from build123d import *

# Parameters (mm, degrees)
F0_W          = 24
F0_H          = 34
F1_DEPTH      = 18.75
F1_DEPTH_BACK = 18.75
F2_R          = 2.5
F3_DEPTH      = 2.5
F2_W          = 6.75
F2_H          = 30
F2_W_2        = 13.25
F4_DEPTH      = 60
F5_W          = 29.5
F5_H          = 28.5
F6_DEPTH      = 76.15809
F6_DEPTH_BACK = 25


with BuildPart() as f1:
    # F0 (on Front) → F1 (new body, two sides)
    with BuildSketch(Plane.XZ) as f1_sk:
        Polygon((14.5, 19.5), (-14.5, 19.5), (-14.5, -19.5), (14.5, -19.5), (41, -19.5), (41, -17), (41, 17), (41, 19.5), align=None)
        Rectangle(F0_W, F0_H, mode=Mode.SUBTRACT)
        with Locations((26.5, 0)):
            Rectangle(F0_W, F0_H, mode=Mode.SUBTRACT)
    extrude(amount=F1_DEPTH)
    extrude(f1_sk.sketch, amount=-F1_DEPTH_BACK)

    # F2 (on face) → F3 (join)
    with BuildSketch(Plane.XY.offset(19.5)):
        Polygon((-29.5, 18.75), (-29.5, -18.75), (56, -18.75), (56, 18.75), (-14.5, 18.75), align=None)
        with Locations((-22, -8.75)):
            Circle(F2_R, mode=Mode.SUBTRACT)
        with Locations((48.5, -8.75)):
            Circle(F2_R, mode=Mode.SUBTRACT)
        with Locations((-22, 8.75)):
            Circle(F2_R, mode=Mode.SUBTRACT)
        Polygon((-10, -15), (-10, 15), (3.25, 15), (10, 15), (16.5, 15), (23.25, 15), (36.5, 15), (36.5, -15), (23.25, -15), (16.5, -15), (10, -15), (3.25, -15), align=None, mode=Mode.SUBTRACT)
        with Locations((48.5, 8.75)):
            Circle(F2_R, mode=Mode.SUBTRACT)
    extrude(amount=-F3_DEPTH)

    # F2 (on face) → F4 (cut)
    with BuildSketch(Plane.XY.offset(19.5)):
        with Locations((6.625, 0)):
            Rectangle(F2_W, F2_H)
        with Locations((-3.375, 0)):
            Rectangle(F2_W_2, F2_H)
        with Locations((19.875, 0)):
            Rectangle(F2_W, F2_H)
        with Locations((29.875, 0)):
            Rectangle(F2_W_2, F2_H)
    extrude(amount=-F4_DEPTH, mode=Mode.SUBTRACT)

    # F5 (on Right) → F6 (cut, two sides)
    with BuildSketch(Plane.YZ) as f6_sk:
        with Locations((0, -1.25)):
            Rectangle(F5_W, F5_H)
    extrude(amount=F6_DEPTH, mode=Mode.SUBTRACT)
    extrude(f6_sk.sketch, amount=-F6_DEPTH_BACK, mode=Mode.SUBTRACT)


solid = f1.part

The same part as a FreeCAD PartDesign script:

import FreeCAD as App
import Part
import Sketcher

doc = App.newDocument("Part")
body = doc.addObject("PartDesign::Body", "Body")

sketch1 = body.newObject("Sketcher::SketchObject", "Sketch")
sketch1.AttachmentSupport = (doc.getObject("XZ_Plane"), [""])
sketch1.MapMode = "FlatFace"
sketch1.addGeometry([
    Part.LineSegment(App.Vector(-14, 20, 0), App.Vector(-14, -20, 0)),
    Part.LineSegment(App.Vector(-14, -20, 0), App.Vector(41, -20, 0)),
    Part.LineSegment(App.Vector(41, -20, 0), App.Vector(41, 20, 0)),
    Part.LineSegment(App.Vector(41, 20, 0), App.Vector(-14, 20, 0)),
    Part.LineSegment(App.Vector(12, -17, 0), App.Vector(-12, -17, 0)),
    Part.LineSegment(App.Vector(-12, -17, 0), App.Vector(-12, 17, 0)),
    Part.LineSegment(App.Vector(-12, 17, 0), App.Vector(12, 17, 0)),
    Part.LineSegment(App.Vector(12, 17, 0), App.Vector(12, -17, 0)),
    Part.LineSegment(App.Vector(38, -17, 0), App.Vector(14, -17, 0)),
    Part.LineSegment(App.Vector(14, -17, 0), App.Vector(14, 17, 0)),
    Part.LineSegment(App.Vector(14, 17, 0), App.Vector(38, 17, 0)),
    Part.LineSegment(App.Vector(38, 17, 0), App.Vector(38, -17, 0)),
], False)
sketch1.addConstraint([
    Sketcher.Constraint("Coincident", 0, 2, 1, 1),
    Sketcher.Constraint("Coincident", 1, 2, 2, 1),
    Sketcher.Constraint("Coincident", 2, 2, 3, 1),
    Sketcher.Constraint("Coincident", 3, 2, 0, 1),
    Sketcher.Constraint("Coincident", 4, 2, 5, 1),
    Sketcher.Constraint("Coincident", 5, 2, 6, 1),
    Sketcher.Constraint("Coincident", 6, 2, 7, 1),
    Sketcher.Constraint("Coincident", 7, 2, 4, 1),
    Sketcher.Constraint("Coincident", 8, 2, 9, 1),
    Sketcher.Constraint("Coincident", 9, 2, 10, 1),
    Sketcher.Constraint("Coincident", 10, 2, 11, 1),
    Sketcher.Constraint("Coincident", 11, 2, 8, 1),
    Sketcher.Constraint("Vertical", 0),
    Sketcher.Constraint("Horizontal", 1),
    Sketcher.Constraint("Vertical", 2),
    Sketcher.Constraint("Horizontal", 3),
    Sketcher.Constraint("Horizontal", 4),
    Sketcher.Constraint("Vertical", 5),
    Sketcher.Constraint("Horizontal", 6),
    Sketcher.Constraint("Vertical", 7),
    Sketcher.Constraint("Horizontal", 8),
    Sketcher.Constraint("Vertical", 9),
    Sketcher.Constraint("Horizontal", 10),
    Sketcher.Constraint("Vertical", 11),
    Sketcher.Constraint("Symmetric", 4, 2, 6, 2, -1, 1),
    Sketcher.Constraint("Horizontal", 7, 2, 8, 2),
    Sketcher.Constraint("Horizontal", 6, 2, 9, 2),
    Sketcher.Constraint("Equal", 6, 8),
    Sketcher.Constraint("DistanceX", 4, 2, 4, 1, 24.0),
    Sketcher.Constraint("DistanceY", 0, 2, 0, 1, 39.0),
    Sketcher.Constraint("DistanceY", 5, 1, 5, 2, 34.0),
    Sketcher.Constraint("DistanceX", 1, 1, 1, 2, 55.5),
    Sketcher.Constraint("DistanceX", -1, 1, 1, 2, 41.0),
    Sketcher.Constraint("DistanceX", 0, 2, 8, 2, 29.0),
    Sketcher.Constraint("DistanceY", 0, 2, -1, 1, 19.5),
])
pad1 = body.newObject("PartDesign::Pad", "Pad")
pad1.Profile = sketch1
pad1.Type = "TwoLengths"
pad1.Length = 18.75
pad1.Length2 = 18.75

sketch2 = body.newObject("Sketcher::SketchObject", "Sketch001")
sketch2.AttachmentSupport = (doc.getObject("XY_Plane"), [""])
sketch2.MapMode = "FlatFace"
sketch2.AttachmentOffset = App.Placement(App.Vector(0, 0, 19.5), App.Rotation())
sketch2.addGeometry([
    Part.LineSegment(App.Vector(-29.5, 18.8, 0), App.Vector(-29.5, -18.8, 0)),
    Part.LineSegment(App.Vector(-29.5, -18.8, 0), App.Vector(56, -18.8, 0)),
    Part.LineSegment(App.Vector(56, -18.8, 0), App.Vector(56, 18.8, 0)),
    Part.LineSegment(App.Vector(56, 18.8, 0), App.Vector(-29.5, 18.8, 0)),
    Part.Circle(App.Vector(-22, -8.8, 0), App.Vector(0, 0, 1), 2.5),
    Part.Circle(App.Vector(48.5, -8.8, 0), App.Vector(0, 0, 1), 2.5),
    Part.Circle(App.Vector(-22, 8.8, 0), App.Vector(0, 0, 1), 2.5),
    Part.LineSegment(App.Vector(36.5, -15, 0), App.Vector(-10, -15, 0)),
    Part.LineSegment(App.Vector(-10, -15, 0), App.Vector(-10, 15, 0)),
    Part.LineSegment(App.Vector(-10, 15, 0), App.Vector(36.5, 15, 0)),
    Part.LineSegment(App.Vector(36.5, 15, 0), App.Vector(36.5, -15, 0)),
    Part.Circle(App.Vector(48.5, 8.8, 0), App.Vector(0, 0, 1), 2.5),
], False)
sketch2.addConstraint([
    Sketcher.Constraint("Coincident", 0, 2, 1, 1),
    Sketcher.Constraint("Coincident", 1, 2, 2, 1),
    Sketcher.Constraint("Coincident", 2, 2, 3, 1),
    Sketcher.Constraint("Coincident", 3, 2, 0, 1),
    Sketcher.Constraint("Coincident", 7, 2, 8, 1),
    Sketcher.Constraint("Coincident", 8, 2, 9, 1),
    Sketcher.Constraint("Coincident", 9, 2, 10, 1),
    Sketcher.Constraint("Coincident", 10, 2, 7, 1),
    Sketcher.Constraint("Vertical", 0),
    Sketcher.Constraint("Horizontal", 1),
    Sketcher.Constraint("Vertical", 2),
    Sketcher.Constraint("Horizontal", 3),
    Sketcher.Constraint("Horizontal", 7),
    Sketcher.Constraint("Vertical", 8),
    Sketcher.Constraint("Horizontal", 9),
    Sketcher.Constraint("Vertical", 10),
    Sketcher.Constraint("Equal", 4, 5),
    Sketcher.Constraint("Equal", 5, 6),
    Sketcher.Constraint("Equal", 6, 11),
    Sketcher.Constraint("Symmetric", 4, 3, 6, 3, -1),
    Sketcher.Constraint("Symmetric", 5, 3, 11, 3, -1),
    Sketcher.Constraint("Horizontal", 4, 3, 5, 3),
    Sketcher.Constraint("Diameter", 4, 5.0),
    Sketcher.Constraint("DistanceY", 8, 1, 8, 2, 30.0),
    Sketcher.Constraint("DistanceX", 1, 1, 1, 2, 85.5),
    Sketcher.Constraint("DistanceX", 7, 2, 7, 1, 46.5),
    Sketcher.Constraint("DistanceY", 0, 2, 0, 1, 37.5),
    Sketcher.Constraint("DistanceX", 4, 3, -1, 1, 22.0),
    Sketcher.Constraint("DistanceX", -1, 1, 1, 2, 56.0),
    Sketcher.Constraint("DistanceX", 7, 2, -1, 1, 10.0),
    Sketcher.Constraint("DistanceY", 7, 2, -1, 1, 15.0),
    Sketcher.Constraint("DistanceY", 0, 2, 4, 3, 10.0),
    Sketcher.Constraint("DistanceX", 0, 2, 5, 3, 78.0),
    Sketcher.Constraint("DistanceY", 11, 3, 2, 2, 10.0),
])
pad2 = body.newObject("PartDesign::Pad", "Pad001")
pad2.Profile = sketch2
pad2.Length = 2.5
pad2.Reversed = True

sketch3 = body.newObject("Sketcher::SketchObject", "Sketch002")
sketch3.AttachmentSupport = (doc.getObject("XY_Plane"), [""])
sketch3.MapMode = "FlatFace"
sketch3.AttachmentOffset = App.Placement(App.Vector(0, 0, 19.5), App.Rotation())
sketch3.addGeometry([
    Part.LineSegment(App.Vector(10, -15, 0), App.Vector(10, 15, 0)),
    Part.LineSegment(App.Vector(10, 15, 0), App.Vector(-10, 15, 0)),
    Part.LineSegment(App.Vector(-10, 15, 0), App.Vector(-10, -15, 0)),
    Part.LineSegment(App.Vector(-10, -15, 0), App.Vector(10, -15, 0)),
    Part.LineSegment(App.Vector(16, 15, 0), App.Vector(16, -15, 0)),
    Part.LineSegment(App.Vector(16, -15, 0), App.Vector(36, -15, 0)),
    Part.LineSegment(App.Vector(36, -15, 0), App.Vector(36, 15, 0)),
    Part.LineSegment(App.Vector(36, 15, 0), App.Vector(16, 15, 0)),
], False)
sketch3.addConstraint([
    Sketcher.Constraint("Coincident", 0, 2, 1, 1),
    Sketcher.Constraint("Coincident", 1, 2, 2, 1),
    Sketcher.Constraint("Coincident", 2, 2, 3, 1),
    Sketcher.Constraint("Coincident", 3, 2, 0, 1),
    Sketcher.Constraint("Coincident", 4, 2, 5, 1),
    Sketcher.Constraint("Coincident", 5, 2, 6, 1),
    Sketcher.Constraint("Coincident", 6, 2, 7, 1),
    Sketcher.Constraint("Coincident", 7, 2, 4, 1),
    Sketcher.Constraint("Vertical", 0),
    Sketcher.Constraint("Horizontal", 1),
    Sketcher.Constraint("Vertical", 2),
    Sketcher.Constraint("Horizontal", 3),
    Sketcher.Constraint("Vertical", 4),
    Sketcher.Constraint("Horizontal", 5),
    Sketcher.Constraint("Vertical", 6),
    Sketcher.Constraint("Horizontal", 7),
    Sketcher.Constraint("Symmetric", 0, 2, 2, 2, -1, 1),
    Sketcher.Constraint("Horizontal", 3, 2, 4, 2),
    Sketcher.Constraint("Horizontal", 1, 2, 6, 2),
    Sketcher.Constraint("Equal", 3, 5),
    Sketcher.Constraint("DistanceX", 1, 2, 1, 1, 20.0),
    Sketcher.Constraint("DistanceY", 0, 1, 0, 2, 30.0),
    Sketcher.Constraint("DistanceX", -1, 1, 4, 2, 16.5),
])
pocket1 = body.newObject("PartDesign::Pocket", "Pocket")
pocket1.Profile = sketch3
pocket1.Length = 60

sketch4 = body.newObject("Sketcher::SketchObject", "Sketch003")
sketch4.AttachmentSupport = (doc.getObject("YZ_Plane"), [""])
sketch4.MapMode = "FlatFace"
sketch4.addGeometry([
    Part.LineSegment(App.Vector(-15, 13, 0), App.Vector(-15, -16, 0)),
    Part.LineSegment(App.Vector(-15, -16, 0), App.Vector(15, -16, 0)),
    Part.LineSegment(App.Vector(15, -16, 0), App.Vector(15, 13, 0)),
    Part.LineSegment(App.Vector(15, 13, 0), App.Vector(-15, 13, 0)),
], False)
sketch4.addConstraint([
    Sketcher.Constraint("Coincident", 0, 2, 1, 1),
    Sketcher.Constraint("Coincident", 1, 2, 2, 1),
    Sketcher.Constraint("Coincident", 2, 2, 3, 1),
    Sketcher.Constraint("Coincident", 3, 2, 0, 1),
    Sketcher.Constraint("Vertical", 0),
    Sketcher.Constraint("Horizontal", 1),
    Sketcher.Constraint("Vertical", 2),
    Sketcher.Constraint("Horizontal", 3),
    Sketcher.Constraint("DistanceX", 1, 1, 1, 2, 29.5),
    Sketcher.Constraint("DistanceY", 0, 2, 0, 1, 28.5),
    Sketcher.Constraint("DistanceY", -1, 1, 2, 2, 13.0),
    Sketcher.Constraint("DistanceX", 0, 2, -1, 1, 14.75),
])
pocket2 = body.newObject("PartDesign::Pocket", "Pocket001")
pocket2.Profile = sketch4
pocket2.Type = "ThroughAll"
pocket2.Midplane = True

doc.recompute()
